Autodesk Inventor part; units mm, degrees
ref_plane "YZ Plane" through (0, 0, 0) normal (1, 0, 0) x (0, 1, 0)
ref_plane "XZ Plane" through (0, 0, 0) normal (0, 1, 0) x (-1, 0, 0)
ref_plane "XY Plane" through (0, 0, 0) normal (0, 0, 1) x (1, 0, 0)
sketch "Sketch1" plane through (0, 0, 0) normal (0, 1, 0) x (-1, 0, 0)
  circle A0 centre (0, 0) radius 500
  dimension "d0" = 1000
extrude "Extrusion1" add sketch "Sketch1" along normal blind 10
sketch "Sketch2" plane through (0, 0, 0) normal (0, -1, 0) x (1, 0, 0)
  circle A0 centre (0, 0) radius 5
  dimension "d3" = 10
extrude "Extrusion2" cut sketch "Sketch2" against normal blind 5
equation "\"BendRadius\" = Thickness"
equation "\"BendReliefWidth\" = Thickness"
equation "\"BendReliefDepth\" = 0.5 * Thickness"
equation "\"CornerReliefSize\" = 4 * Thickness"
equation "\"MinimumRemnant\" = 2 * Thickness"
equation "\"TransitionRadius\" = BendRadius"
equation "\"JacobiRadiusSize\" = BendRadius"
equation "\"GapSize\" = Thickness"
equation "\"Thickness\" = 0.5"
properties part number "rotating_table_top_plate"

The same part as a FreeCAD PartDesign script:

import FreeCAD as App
import Part
import Sketcher

doc = App.newDocument("Part")
body = doc.addObject("PartDesign::Body", "Body")

sketch1 = doc.addObject("Sketcher::SketchObject", "Sketch")
body.addObject(sketch1)
sketch1.AttachmentSupport = (doc.XZ_Plane, [""])
sketch1.MapMode = "FlatFace"
sketch1.addGeometry(Part.Circle(App.Vector(0, 0, 0), App.Vector(0, 0, 1), 500), False)
sketch1.addConstraint([
    Sketcher.Constraint("Coincident", 0, 3, -1, 1),
    Sketcher.Constraint("Diameter", 0, 1000.0),
])
pad1 = doc.addObject("PartDesign::Pad", "Pad")
body.addObject(pad1)
pad1.Profile = sketch1
pad1.Length = 10
pad1.Reversed = True

sketch2 = doc.addObject("Sketcher::SketchObject", "Sketch001")
body.addObject(sketch2)
sketch2.AttachmentSupport = (doc.XZ_Plane, [""])
sketch2.MapMode = "FlatFace"
sketch2.addGeometry(Part.Circle(App.Vector(0, 0, 0), App.Vector(0, 0, 1), 5), False)
sketch2.addConstraint([
    Sketcher.Constraint("Coincident", 0, 3, -1, 1),
    Sketcher.Constraint("Diameter", 0, 10.0),
])
pocket1 = doc.addObject("PartDesign::Pocket", "Pocket")
body.addObject(pocket1)
pocket1.Profile = sketch2
pocket1.Length = 5

doc.recompute()
